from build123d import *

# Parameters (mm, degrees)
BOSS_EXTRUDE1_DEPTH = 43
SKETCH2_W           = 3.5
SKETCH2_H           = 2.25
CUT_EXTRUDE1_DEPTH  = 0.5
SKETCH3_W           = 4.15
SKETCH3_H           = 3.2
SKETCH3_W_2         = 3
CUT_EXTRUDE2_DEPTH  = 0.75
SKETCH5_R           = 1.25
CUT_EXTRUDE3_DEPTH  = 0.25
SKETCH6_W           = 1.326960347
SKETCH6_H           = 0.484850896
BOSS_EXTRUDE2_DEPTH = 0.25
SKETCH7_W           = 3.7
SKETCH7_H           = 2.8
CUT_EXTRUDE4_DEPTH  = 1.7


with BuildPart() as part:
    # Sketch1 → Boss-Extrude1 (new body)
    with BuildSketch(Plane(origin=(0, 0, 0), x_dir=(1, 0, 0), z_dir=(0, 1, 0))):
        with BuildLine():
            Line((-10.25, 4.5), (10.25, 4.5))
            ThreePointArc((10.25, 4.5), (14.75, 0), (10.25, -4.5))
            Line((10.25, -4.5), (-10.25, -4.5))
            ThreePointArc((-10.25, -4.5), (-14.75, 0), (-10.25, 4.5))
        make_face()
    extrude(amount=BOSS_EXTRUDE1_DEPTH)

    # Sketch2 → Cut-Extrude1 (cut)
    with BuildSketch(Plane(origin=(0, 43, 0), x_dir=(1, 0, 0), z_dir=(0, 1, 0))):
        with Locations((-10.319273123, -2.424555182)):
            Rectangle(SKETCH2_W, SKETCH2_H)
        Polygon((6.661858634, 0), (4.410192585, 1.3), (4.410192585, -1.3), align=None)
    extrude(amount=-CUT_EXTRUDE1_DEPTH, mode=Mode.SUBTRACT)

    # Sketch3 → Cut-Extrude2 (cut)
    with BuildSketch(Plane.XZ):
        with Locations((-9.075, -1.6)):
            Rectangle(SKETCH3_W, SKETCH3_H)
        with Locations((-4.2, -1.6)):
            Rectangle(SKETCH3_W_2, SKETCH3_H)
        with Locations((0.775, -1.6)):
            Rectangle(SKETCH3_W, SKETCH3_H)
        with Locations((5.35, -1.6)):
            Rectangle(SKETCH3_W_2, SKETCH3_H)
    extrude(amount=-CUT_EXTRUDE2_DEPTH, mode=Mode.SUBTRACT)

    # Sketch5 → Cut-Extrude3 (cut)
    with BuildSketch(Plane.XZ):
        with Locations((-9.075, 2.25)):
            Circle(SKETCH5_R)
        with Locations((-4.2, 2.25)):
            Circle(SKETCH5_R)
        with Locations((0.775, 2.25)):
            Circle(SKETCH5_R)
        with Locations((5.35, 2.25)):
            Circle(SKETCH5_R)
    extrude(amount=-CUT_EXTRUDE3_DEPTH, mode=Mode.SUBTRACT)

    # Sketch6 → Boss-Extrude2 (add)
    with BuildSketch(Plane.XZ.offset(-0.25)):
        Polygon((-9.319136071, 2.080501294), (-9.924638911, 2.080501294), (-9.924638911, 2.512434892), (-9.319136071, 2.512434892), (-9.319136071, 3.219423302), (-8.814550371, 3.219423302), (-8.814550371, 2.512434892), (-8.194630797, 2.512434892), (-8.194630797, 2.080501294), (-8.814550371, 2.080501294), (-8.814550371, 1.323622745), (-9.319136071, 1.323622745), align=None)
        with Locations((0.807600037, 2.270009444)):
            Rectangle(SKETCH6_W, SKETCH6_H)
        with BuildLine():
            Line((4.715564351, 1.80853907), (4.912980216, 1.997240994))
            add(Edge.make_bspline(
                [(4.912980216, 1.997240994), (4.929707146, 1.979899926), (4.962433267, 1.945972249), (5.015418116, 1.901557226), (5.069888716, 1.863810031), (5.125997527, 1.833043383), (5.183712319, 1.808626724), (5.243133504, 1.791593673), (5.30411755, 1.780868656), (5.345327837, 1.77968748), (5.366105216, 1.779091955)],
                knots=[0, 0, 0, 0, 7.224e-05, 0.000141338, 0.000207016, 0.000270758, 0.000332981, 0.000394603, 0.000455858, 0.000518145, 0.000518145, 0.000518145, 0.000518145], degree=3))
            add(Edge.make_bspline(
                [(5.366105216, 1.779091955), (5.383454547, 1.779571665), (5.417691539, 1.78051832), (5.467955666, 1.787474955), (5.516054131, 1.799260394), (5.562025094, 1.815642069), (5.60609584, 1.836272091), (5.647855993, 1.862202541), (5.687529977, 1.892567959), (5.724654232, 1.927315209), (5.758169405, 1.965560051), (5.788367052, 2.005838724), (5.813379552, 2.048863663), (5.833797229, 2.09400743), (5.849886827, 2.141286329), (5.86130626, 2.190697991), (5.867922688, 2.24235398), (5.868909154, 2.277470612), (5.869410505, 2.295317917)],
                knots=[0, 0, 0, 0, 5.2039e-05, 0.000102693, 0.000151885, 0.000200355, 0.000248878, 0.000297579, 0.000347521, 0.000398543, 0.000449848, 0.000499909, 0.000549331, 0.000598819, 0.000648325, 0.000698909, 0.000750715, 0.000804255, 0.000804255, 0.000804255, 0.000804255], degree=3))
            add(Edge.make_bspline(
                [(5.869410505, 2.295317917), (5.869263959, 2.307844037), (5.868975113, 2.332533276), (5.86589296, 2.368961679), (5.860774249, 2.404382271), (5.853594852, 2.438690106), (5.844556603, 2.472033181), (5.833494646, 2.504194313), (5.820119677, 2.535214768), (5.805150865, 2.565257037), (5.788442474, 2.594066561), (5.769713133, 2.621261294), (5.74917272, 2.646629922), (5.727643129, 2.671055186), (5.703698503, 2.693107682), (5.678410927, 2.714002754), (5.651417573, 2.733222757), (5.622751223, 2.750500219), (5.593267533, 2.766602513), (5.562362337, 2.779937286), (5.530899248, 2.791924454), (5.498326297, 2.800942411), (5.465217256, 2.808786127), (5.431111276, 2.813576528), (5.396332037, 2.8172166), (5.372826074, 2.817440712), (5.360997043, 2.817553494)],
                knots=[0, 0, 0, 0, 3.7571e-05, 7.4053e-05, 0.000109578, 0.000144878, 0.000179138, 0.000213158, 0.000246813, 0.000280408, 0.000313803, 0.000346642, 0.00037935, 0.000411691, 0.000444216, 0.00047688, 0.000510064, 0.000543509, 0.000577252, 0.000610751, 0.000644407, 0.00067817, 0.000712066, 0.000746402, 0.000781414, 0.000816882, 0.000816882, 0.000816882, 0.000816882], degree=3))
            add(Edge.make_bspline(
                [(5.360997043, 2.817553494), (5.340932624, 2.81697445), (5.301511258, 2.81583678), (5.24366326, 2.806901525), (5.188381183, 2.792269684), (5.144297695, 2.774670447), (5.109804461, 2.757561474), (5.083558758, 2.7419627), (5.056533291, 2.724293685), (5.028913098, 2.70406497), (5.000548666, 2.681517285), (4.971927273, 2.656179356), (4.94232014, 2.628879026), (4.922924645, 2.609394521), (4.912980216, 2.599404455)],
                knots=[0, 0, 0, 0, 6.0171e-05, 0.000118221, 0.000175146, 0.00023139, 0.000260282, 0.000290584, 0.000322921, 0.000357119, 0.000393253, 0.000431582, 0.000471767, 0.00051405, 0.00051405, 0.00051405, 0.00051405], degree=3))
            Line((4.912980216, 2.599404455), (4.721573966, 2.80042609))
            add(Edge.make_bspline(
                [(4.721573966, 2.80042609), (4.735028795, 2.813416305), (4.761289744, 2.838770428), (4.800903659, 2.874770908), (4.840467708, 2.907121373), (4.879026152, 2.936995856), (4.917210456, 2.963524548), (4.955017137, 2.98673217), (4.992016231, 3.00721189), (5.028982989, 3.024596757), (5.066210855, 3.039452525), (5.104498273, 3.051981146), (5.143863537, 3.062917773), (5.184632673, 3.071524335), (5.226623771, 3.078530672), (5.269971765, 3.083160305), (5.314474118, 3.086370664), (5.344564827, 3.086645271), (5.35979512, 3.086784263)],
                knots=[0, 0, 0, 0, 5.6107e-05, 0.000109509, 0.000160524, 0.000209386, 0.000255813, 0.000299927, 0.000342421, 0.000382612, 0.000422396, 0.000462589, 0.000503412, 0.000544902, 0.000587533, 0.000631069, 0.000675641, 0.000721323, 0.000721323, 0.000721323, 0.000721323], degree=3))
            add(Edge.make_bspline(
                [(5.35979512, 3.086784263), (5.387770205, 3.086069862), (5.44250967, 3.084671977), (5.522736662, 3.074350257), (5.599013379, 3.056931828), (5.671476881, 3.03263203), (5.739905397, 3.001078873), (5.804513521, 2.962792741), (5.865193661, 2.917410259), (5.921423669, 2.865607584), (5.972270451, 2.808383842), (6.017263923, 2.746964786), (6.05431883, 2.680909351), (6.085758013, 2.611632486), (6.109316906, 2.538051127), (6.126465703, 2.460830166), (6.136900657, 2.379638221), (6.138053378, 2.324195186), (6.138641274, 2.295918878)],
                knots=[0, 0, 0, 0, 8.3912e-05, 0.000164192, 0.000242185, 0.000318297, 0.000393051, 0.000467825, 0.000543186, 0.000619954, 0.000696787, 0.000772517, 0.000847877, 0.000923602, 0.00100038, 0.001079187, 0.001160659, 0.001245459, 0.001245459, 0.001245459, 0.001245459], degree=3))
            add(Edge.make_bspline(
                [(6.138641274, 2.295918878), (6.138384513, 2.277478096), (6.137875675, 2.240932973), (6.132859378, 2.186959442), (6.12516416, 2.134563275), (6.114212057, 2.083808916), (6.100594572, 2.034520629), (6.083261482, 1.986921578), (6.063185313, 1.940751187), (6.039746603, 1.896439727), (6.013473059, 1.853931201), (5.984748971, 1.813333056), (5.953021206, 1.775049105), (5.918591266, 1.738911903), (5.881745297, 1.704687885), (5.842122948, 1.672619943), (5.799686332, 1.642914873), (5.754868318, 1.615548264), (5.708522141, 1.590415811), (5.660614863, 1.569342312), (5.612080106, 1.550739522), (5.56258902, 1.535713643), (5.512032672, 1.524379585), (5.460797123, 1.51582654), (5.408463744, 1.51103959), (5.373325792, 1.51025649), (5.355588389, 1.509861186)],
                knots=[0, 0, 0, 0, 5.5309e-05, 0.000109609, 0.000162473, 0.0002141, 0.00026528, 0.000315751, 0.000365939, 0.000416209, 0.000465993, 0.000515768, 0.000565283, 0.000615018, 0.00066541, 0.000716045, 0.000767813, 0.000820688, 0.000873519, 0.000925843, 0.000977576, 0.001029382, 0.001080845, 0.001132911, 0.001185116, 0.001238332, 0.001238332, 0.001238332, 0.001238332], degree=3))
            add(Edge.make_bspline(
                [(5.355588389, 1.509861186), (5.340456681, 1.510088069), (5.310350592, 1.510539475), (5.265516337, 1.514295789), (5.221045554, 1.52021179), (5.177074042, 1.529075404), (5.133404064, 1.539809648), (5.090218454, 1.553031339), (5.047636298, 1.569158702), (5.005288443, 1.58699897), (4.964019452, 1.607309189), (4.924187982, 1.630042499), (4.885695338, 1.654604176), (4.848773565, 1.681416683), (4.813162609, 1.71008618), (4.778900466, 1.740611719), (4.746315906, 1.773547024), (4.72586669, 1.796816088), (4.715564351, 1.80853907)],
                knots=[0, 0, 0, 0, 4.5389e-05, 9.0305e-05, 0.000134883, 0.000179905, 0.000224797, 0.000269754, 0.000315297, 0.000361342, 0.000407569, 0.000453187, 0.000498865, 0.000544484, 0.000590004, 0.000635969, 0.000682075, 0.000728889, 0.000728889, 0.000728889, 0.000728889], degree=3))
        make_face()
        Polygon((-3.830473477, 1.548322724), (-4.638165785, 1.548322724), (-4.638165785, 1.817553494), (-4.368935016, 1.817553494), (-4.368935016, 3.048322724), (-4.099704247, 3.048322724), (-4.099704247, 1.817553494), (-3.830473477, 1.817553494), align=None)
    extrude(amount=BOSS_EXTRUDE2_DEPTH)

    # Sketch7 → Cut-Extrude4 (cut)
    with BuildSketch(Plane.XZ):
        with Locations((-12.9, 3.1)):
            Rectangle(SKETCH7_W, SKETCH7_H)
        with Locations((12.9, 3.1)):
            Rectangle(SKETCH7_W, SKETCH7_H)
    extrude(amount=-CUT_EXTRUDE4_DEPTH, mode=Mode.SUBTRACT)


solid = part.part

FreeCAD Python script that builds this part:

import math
import FreeCAD as App
import Part
import Sketcher
from FreeCAD import Vector
Q = App.Units.Quantity

doc = App.newDocument("Part")
params = doc.addObject("Spreadsheet::Sheet", "Params")
for row, (alias, value) in enumerate([
    ("sketch1_radius", "4.5 mm"),
    ("sketch1_width", "20.5 mm"),
    ("pad1_length", "43 mm"),
    ("sketch2_width", "3.5 mm"),
    ("sketch2_height", "2.6 mm"),
    ("sketch2_height2", "2.25 mm"),
    ("pocket1_length", "0.5 mm"),
    ("sketch3_width", "3 mm"),
    ("sketch3_height", "3.2 mm"),
    ("sketch3_width2", "4.15 mm"),
    ("pocket2_length", "0.75 mm"),
    ("sketch4_diameter", "2.5 mm"),
    ("pocket3_length", "0.25 mm"),
    ("pad2_length", "0.25 mm"),
    ("sketch6_width", "3.7 mm"),
    ("sketch6_height", "2.8 mm"),
    ("pocket4_length", "1.7 mm"),
], start=1):
    params.set(f"A{row}", alias)
    params.set(f"B{row}", "=" + value)
    params.setAlias(f"B{row}", alias)

body = doc.addObject("PartDesign::Body", "Body")

# Sketch on XZ plane
sketch1 = body.newObject("Sketcher::SketchObject", "Sketch")
sketch1.AttachmentSupport = (doc.getObject("XZ_Plane"), [""])
sketch1.MapMode = "FlatFace"
sketch1.addGeometry([
    Part.LineSegment(Vector(10.2, -4.5, 0), Vector(-10.2, -4.5, 0)),
    Part.ArcOfCircle(Part.Circle(Vector(-10.2, 0, 0), Vector(0, 0, 1), 4.5), math.radians(90), math.radians(270)),
    Part.LineSegment(Vector(-10.2, 4.5, 0), Vector(10.2, 4.5, 0)),
    Part.ArcOfCircle(Part.Circle(Vector(10.2, 0, 0), Vector(0, 0, 1), 4.5), math.radians(-90), math.radians(90)),
], False)
sketch1.addConstraint([
    Sketcher.Constraint("Tangent", 0, 2, 1, 2),
    Sketcher.Constraint("Tangent", 1, 1, 2, 1),
    Sketcher.Constraint("Tangent", 2, 2, 3, 2),
    Sketcher.Constraint("Tangent", 3, 1, 0, 1),
    Sketcher.Constraint("Horizontal", 0),
    Sketcher.Constraint("Horizontal", 2),
    Sketcher.Constraint("Symmetric", 1, 3, 3, 3, -1, 1),
    Sketcher.Constraint("Radius", 1, Q("4.5 mm")),
    Sketcher.Constraint("DistanceX", 0, 2, 0, 1, Q("20.5 mm")),
])
sketch1.setExpression("Constraints[7]", "Params.sketch1_radius")
sketch1.setExpression("Constraints[8]", "Params.sketch1_width")
pad1 = body.newObject("PartDesign::Pad", "Pad")
pad1.Profile = sketch1
pad1.setExpression("Length", "Params.pad1_length")
pad1.Reversed = True

# Sketch on XZ plane
sketch2 = body.newObject("Sketcher::SketchObject", "Sketch001")
sketch2.AttachmentSupport = (doc.getObject("XZ_Plane"), [""])
sketch2.MapMode = "FlatFace"
sketch2.AttachmentOffset = App.Placement(Vector(0, 0, -43), App.Rotation())
sketch2.addGeometry([
    Part.LineSegment(Vector(-12.1, 1.3, 0), Vector(-12.1, 3.5, 0)),  # 0
    Part.LineSegment(Vector(-12.1, 3.5, 0), Vector(-8.6, 3.5, 0)),  # 1
    Part.LineSegment(Vector(-8.6, 3.5, 0), Vector(-8.6, 1.3, 0)),  # 2
    Part.LineSegment(Vector(-8.6, 1.3, 0), Vector(-12.1, 1.3, 0)),  # 3
    Part.LineSegment(Vector(6.7, 0, 0), Vector(4.4, -1.3, 0)),  # 4
    Part.LineSegment(Vector(4.4, -1.3, 0), Vector(4.4, 1.3, 0)),  # 5
    Part.LineSegment(Vector(4.4, 1.3, 0), Vector(6.7, 0, 0)),  # 6
], False)
sketch2.addConstraint([
    Sketcher.Constraint("Coincident", 0, 2, 1, 1),
    Sketcher.Constraint("Coincident", 1, 2, 2, 1),
    Sketcher.Constraint("Coincident", 2, 2, 3, 1),
    Sketcher.Constraint("Coincident", 3, 2, 0, 1),
    Sketcher.Constraint("Coincident", 4, 2, 5, 1),
    Sketcher.Constraint("Coincident", 5, 2, 6, 1),
    Sketcher.Constraint("Coincident", 6, 2, 4, 1),
    Sketcher.Constraint("Vertical", 0),
    Sketcher.Constraint("Horizontal", 1),
    Sketcher.Constraint("Vertical", 2),
    Sketcher.Constraint("Horizontal", 3),
    Sketcher.Constraint("Vertical", 5),
    Sketcher.Constraint("PointOnObject", 6, 2, -1),
    Sketcher.Constraint("Equal", 4, 6),
    Sketcher.Constraint("Angle", 4, Q("-150 deg")),
    Sketcher.Constraint("DistanceX", 1, 1, 1, 2, Q("3.5 mm")),
    Sketcher.Constraint("DistanceY", 5, 1, 5, 2, Q("2.6 mm")),
    Sketcher.Constraint("DistanceY", 0, 1, 0, 2, Q("2.25 mm")),
    Sketcher.Constraint("DistanceX", -1, 1, 6, 2, Q("6.661859 mm")),
    Sketcher.Constraint("DistanceX", 2, 2, 6, 2, Q("15.231132 mm")),
    Sketcher.Constraint("DistanceY", -1, 1, 0, 2, Q("3.549555 mm")),
])
sketch2.setExpression("Constraints[15]", "Params.sketch2_width")
sketch2.setExpression("Constraints[16]", "Params.sketch2_height")
sketch2.setExpression("Constraints[17]", "Params.sketch2_height2")
pocket1 = body.newObject("PartDesign::Pocket", "Pocket")
pocket1.Profile = sketch2
pocket1.setExpression("Length", "Params.pocket1_length")
pocket1.Reversed = True

# Sketch on XZ plane
sketch3 = body.newObject("Sketcher::SketchObject", "Sketch002")
sketch3.AttachmentSupport = (doc.getObject("XZ_Plane"), [""])
sketch3.MapMode = "FlatFace"
sketch3.addGeometry([
    Part.LineSegment(Vector(-11.2, 0, 0), Vector(-11.2, -3.2, 0)),  # 0
    Part.LineSegment(Vector(-11.2, -3.2, 0), Vector(-7, -3.2, 0)),  # 1
    Part.LineSegment(Vector(-7, -3.2, 0), Vector(-7, 0, 0)),  # 2
    Part.LineSegment(Vector(-7, 0, 0), Vector(-11.2, 0, 0)),  # 3
    Part.LineSegment(Vector(-5.7, 0, 0), Vector(-5.7, -3.2, 0)),  # 4
    Part.LineSegment(Vector(-5.7, -3.2, 0), Vector(-2.7, -3.2, 0)),  # 5
    Part.LineSegment(Vector(-2.7, -3.2, 0), Vector(-2.7, 0, 0)),  # 6
    Part.LineSegment(Vector(-2.7, 0, 0), Vector(-5.7, 0, 0)),  # 7
    Part.LineSegment(Vector(-1.3, 0, 0), Vector(-1.3, -3.2, 0)),  # 8
    Part.LineSegment(Vector(-1.3, -3.2, 0), Vector(2.9, -3.2, 0)),  # 9
    Part.LineSegment(Vector(2.9, -3.2, 0), Vector(2.9, 0, 0)),  # 10
    Part.LineSegment(Vector(2.9, 0, 0), Vector(-1.3, 0, 0)),  # 11
    Part.LineSegment(Vector(3.9, 0, 0), Vector(3.9, -3.2, 0)),  # 12
    Part.LineSegment(Vector(3.9, -3.2, 0), Vector(6.8, -3.2, 0)),  # 13
    Part.LineSegment(Vector(6.8, -3.2, 0), Vector(6.8, 0, 0)),  # 14
    Part.LineSegment(Vector(6.8, 0, 0), Vector(3.9, 0, 0)),  # 15
], False)
sketch3.addConstraint([
    Sketcher.Constraint("Coincident", 0, 2, 1, 1),
    Sketcher.Constraint("Coincident", 1, 2, 2, 1),
    Sketcher.Constraint("Coincident", 2, 2, 3, 1),
    Sketcher.Constraint("Coincident", 3, 2, 0, 1),
    Sketcher.Constraint("Coincident", 4, 2, 5, 1),
    Sketcher.Constraint("Coincident", 5, 2, 6, 1),
    Sketcher.Constraint("Coincident", 6, 2, 7, 1),
    Sketcher.Constraint("Coincident", 7, 2, 4, 1),
    Sketcher.Constraint("Coincident", 8, 2, 9, 1),
    Sketcher.Constraint("Coincident", 9, 2, 10, 1),
    Sketcher.Constraint("Coincident", 10, 2, 11, 1),
    Sketcher.Constraint("Coincident", 11, 2, 8, 1),
    Sketcher.Constraint("Coincident", 12, 2, 13, 1),
    Sketcher.Constraint("Coincident", 13, 2, 14, 1),
    Sketcher.Constraint("Coincident", 14, 2, 15, 1),
    Sketcher.Constraint("Coincident", 15, 2, 12, 1),
    Sketcher.Constraint("Vertical", 0),
    Sketcher.Constraint("Horizontal", 1),
    Sketcher.Constraint("Vertical", 2),
    Sketcher.Constraint("Horizontal", 3),
    Sketcher.Constraint("Vertical", 4),
    Sketcher.Constraint("Horizontal", 5),
    Sketcher.Constraint("Vertical", 6),
    Sketcher.Constraint("Horizontal", 7),
    Sketcher.Constraint("Vertical", 8),
    Sketcher.Constraint("Horizontal", 9),
    Sketcher.Constraint("Vertical", 10),
    Sketcher.Constraint("Horizontal", 11),
    Sketcher.Constraint("Vertical", 12),
    Sketcher.Constraint("Horizontal", 13),
    Sketcher.Constraint("Vertical", 14),
    Sketcher.Constraint("Horizontal", 15),
    Sketcher.Constraint("PointOnObject", 2, 2, -1),
    Sketcher.Constraint("PointOnObject", 6, 2, -1),
    Sketcher.Constraint("PointOnObject", 10, 2, -1),
    Sketcher.Constraint("PointOnObject", 14, 2, -1),
    Sketcher.Constraint("Horizontal", 1, 2, 4, 2),
    Sketcher.Constraint("Horizontal", 5, 2, 8, 2),
    Sketcher.Constraint("Horizontal", 9, 2, 12, 2),
    Sketcher.Constraint("Equal", 3, 9),
    Sketcher.Constraint("Equal", 7, 13),
    Sketcher.Constraint("DistanceX", 5, 1, 5, 2, Q("3 mm")),
    Sketcher.Constraint("DistanceY", 0, 2, 0, 1, Q("3.2 mm")),
    Sketcher.Constraint("DistanceX", 1, 2, -1, 1, Q("7 mm")),
    Sketcher.Constraint("DistanceX", 9, 2, 12, 2, Q("1 mm")),
    Sketcher.Constraint("DistanceX", 1, 1, 1, 2, Q("4.15 mm")),
    Sketcher.Constraint("DistanceX", 4, 2, -1, 1, Q("5.7 mm")),
    Sketcher.Constraint("DistanceX", 8, 2, -1, 1, Q("1.3 mm")),
])
sketch3.setExpression("Constraints[41]", "Params.sketch3_width")
sketch3.setExpression("Constraints[42]", "Params.sketch3_height")
sketch3.setExpression("Constraints[45]", "Params.sketch3_width2")
pocket2 = body.newObject("PartDesign::Pocket", "Pocket001")
pocket2.Profile = sketch3
pocket2.setExpression("Length", "Params.pocket2_length")

# Sketch on XZ plane
sketch4 = body.newObject("Sketcher::SketchObject", "Sketch003")
sketch4.AttachmentSupport = (doc.getObject("XZ_Plane"), [""])
sketch4.MapMode = "FlatFace"
sketch4.addGeometry([
    Part.Circle(Vector(-9.1, 2.2, 0), Vector(0, 0, 1), 1.2),
    Part.Circle(Vector(-4.2, 2.2, 0), Vector(0, 0, 1), 1.2),
    Part.Circle(Vector(0.8, 2.2, 0), Vector(0, 0, 1), 1.2),
    Part.Circle(Vector(5.3, 2.2, 0), Vector(0, 0, 1), 1.2),
], False)
sketch4.addConstraint([
    Sketcher.Constraint("Equal", 0, 1),
    Sketcher.Constraint("Equal", 1, 2),
    Sketcher.Constraint("Equal", 2, 3),
    Sketcher.Constraint("Horizontal", 0, 3, 1, 3),
    Sketcher.Constraint("Horizontal", 1, 3, 2, 3),
    Sketcher.Constraint("Horizontal", 2, 3, 3, 3),
    Sketcher.Constraint("Diameter", 0, Q("2.5 mm")),
    Sketcher.Constraint("DistanceX", 1, 3, -1, 1, Q("4.2 mm")),
    Sketcher.Constraint("DistanceY", -1, 1, 0, 3, Q("2.25 mm")),
    Sketcher.Constraint("DistanceX", -1, 1, 3, 3, Q("5.35 mm")),
    Sketcher.Constraint("DistanceX", 0, 3, 2, 3, Q("9.85 mm")),
    Sketcher.Constraint("DistanceX", 0, 3, -1, 1, Q("9.075 mm")),
])
sketch4.setExpression("Constraints[6]", "Params.sketch4_diameter")
pocket3 = body.newObject("PartDesign::Pocket", "Pocket002")
pocket3.Profile = sketch4
pocket3.setExpression("Length", "Params.pocket3_length")

# Sketch on XZ plane
sketch5 = body.newObject("Sketcher::SketchObject", "Sketch004")
sketch5.AttachmentSupport = (doc.getObject("XZ_Plane"), [""])
sketch5.MapMode = "FlatFace"
sketch5.AttachmentOffset = App.Placement(Vector(0, 0, -0.25), App.Rotation())
sketch5.addGeometry([
    Part.LineSegment(Vector(-9.924639, 2.080501, 0), Vector(-9.319136, 2.080501, 0)),  # 0
    Part.LineSegment(Vector(-9.319136, 2.080501, 0), Vector(-9.319136, 1.323623, 0)),  # 1
    Part.LineSegment(Vector(-9.319136, 1.323623, 0), Vector(-8.81455, 1.323623, 0)),  # 2
    Part.LineSegment(Vector(-8.81455, 1.323623, 0), Vector(-8.81455, 2.080501, 0)),  # 3
    Part.LineSegment(Vector(-8.81455, 2.080501, 0), Vector(-8.194631, 2.080501, 0)),  # 4
    Part.LineSegment(Vector(-8.194631, 2.080501, 0), Vector(-8.194631, 2.512435, 0)),  # 5
    Part.LineSegment(Vector(-8.194631, 2.512435, 0), Vector(-8.81455, 2.512435, 0)),  # 6
    Part.LineSegment(Vector(-8.81455, 2.512435, 0), Vector(-8.81455, 3.219423, 0)),  # 7
    Part.LineSegment(Vector(-8.81455, 3.219423, 0), Vector(-9.319136, 3.219423, 0)),  # 8
    Part.LineSegment(Vector(-9.319136, 3.219423, 0), Vector(-9.319136, 2.512435, 0)),  # 9
    Part.LineSegment(Vector(-9.319136, 2.512435, 0), Vector(-9.924639, 2.512435, 0)),  # 10
    Part.LineSegment(Vector(-9.924639, 2.512435, 0), Vector(-9.924639, 2.080501, 0)),  # 11
    Part.LineSegment(Vector(0.14412, 2.512435, 0), Vector(0.14412, 2.027584, 0)),  # 12
    Part.LineSegment(Vector(0.14412, 2.027584, 0), Vector(1.47108, 2.027584, 0)),  # 13
    Part.LineSegment(Vector(1.47108, 2.027584, 0), Vector(1.47108, 2.512435, 0)),  # 14
    Part.LineSegment(Vector(1.47108, 2.512435, 0), Vector(0.14412, 2.512435, 0)),  # 15
    Part.LineSegment(Vector(4.91298, 1.997241, 0), Vector(4.715564, 1.808539, 0)),  # 16
    Part.BSplineCurve([Vector(5.355588, 1.509861, 0), Vector(5.340457, 1.510088, 0), Vector(5.310351, 1.510539, 0), Vector(5.265516, 1.514296, 0), Vector(5.221046, 1.520212, 0), Vector(5.177074, 1.529075, 0), Vector(5.133404, 1.53981, 0), Vector(5.090218, 1.553031, 0), Vector(5.047636, 1.569159, 0), Vector(5.005288, 1.586999, 0), Vector(4.964019, 1.607309, 0), Vector(4.924188, 1.630042, 0), Vector(4.885695, 1.654604, 0), Vector(4.848774, 1.681417, 0), Vector(4.813163, 1.710086, 0), Vector(4.7789, 1.740612, 0), Vector(4.746316, 1.773547, 0), Vector(4.725867, 1.796816, 0), Vector(4.715564, 1.808539, 0)], [4, 1, 1, 1, 1, 1, 1, 1, 1, 1, 1, 1, 1, 1, 1, 1, 4], [0, 0.000045389, 0.000090305, 0.000134883, 0.000179905, 0.000224797, 0.000269754, 0.000315297, 0.000361342, 0.000407569, 0.000453187, 0.000498865, 0.000544484, 0.000590004, 0.000635969, 0.000682075, 0.000728889], False, 3, [1, 1, 1, 1, 1, 1, 1, 1, 1, 1, 1, 1, 1, 1, 1, 1, 1, 1, 1], False),  # 17
    Part.BSplineCurve([Vector(6.138641, 2.295919, 0), Vector(6.138385, 2.277478, 0), Vector(6.137876, 2.240933, 0), Vector(6.132859, 2.186959, 0), Vector(6.125164, 2.134563, 0), Vector(6.114212, 2.083809, 0), Vector(6.100595, 2.034521, 0), Vector(6.083261, 1.986922, 0), Vector(6.063185, 1.940751, 0), Vector(6.039747, 1.89644, 0), Vector(6.013473, 1.853931, 0), Vector(5.984749, 1.813333, 0), Vector(5.953021, 1.775049, 0), Vector(5.918591, 1.738912, 0), Vector(5.881745, 1.704688, 0), Vector(5.842123, 1.67262, 0), Vector(5.799686, 1.642915, 0), Vector(5.754868, 1.615548, 0), Vector(5.708522, 1.590416, 0), Vector(5.660615, 1.569342, 0), Vector(5.61208, 1.55074, 0), Vector(5.562589, 1.535714, 0), Vector(5.512033, 1.52438, 0), Vector(5.460797, 1.515827, 0), Vector(5.408464, 1.51104, 0), Vector(5.373326, 1.510256, 0), Vector(5.355588, 1.509861, 0)], [4, 1, 1, 1, 1, 1, 1, 1, 1, 1, 1, 1, 1, 1, 1, 1, 1, 1, 1, 1, 1, 1, 1, 1, 4], [0, 0.000055309, 0.000109609, 0.000162473, 0.0002141, 0.00026528, 0.000315751, 0.000365939, 0.000416209, 0.000465993, 0.000515768, 0.000565283, 0.000615018, 0.00066541, 0.000716045, 0.000767813, 0.000820688, 0.000873519, 0.000925843, 0.000977576, 0.001029382, 0.001080845, 0.001132911, 0.001185116, 0.001238332], False, 3, [1, 1, 1, 1, 1, 1, 1, 1, 1, 1, 1, 1, 1, 1, 1, 1, 1, 1, 1, 1, 1, 1, 1, 1, 1, 1, 1], False),  # 18
    Part.BSplineCurve([Vector(5.359795, 3.086784, 0), Vector(5.38777, 3.08607, 0), Vector(5.44251, 3.084672, 0), Vector(5.522737, 3.07435, 0), Vector(5.599013, 3.056932, 0), Vector(5.671477, 3.032632, 0), Vector(5.739905, 3.001079, 0), Vector(5.804514, 2.962793, 0), Vector(5.865194, 2.91741, 0), Vector(5.921424, 2.865608, 0), Vector(5.97227, 2.808384, 0), Vector(6.017264, 2.746965, 0), Vector(6.054319, 2.680909, 0), Vector(6.085758, 2.611632, 0), Vector(6.109317, 2.538051, 0), Vector(6.126466, 2.46083, 0), Vector(6.136901, 2.379638, 0), Vector(6.138053, 2.324195, 0), Vector(6.138641, 2.295919, 0)], [4, 1, 1, 1, 1, 1, 1, 1, 1, 1, 1, 1, 1, 1, 1, 1, 4], [0, 0.000083912, 0.000164192, 0.000242185, 0.000318297, 0.000393051, 0.000467825, 0.000543186, 0.000619954, 0.000696787, 0.000772517, 0.000847877, 0.000923602, 0.00100038, 0.001079187, 0.001160659, 0.001245459], False, 3, [1, 1, 1, 1, 1, 1, 1, 1, 1, 1, 1, 1, 1, 1, 1, 1, 1, 1, 1], False),  # 19
    Part.BSplineCurve([Vector(4.721574, 2.800426, 0), Vector(4.735029, 2.813416, 0), Vector(4.76129, 2.83877, 0), Vector(4.800904, 2.874771, 0), Vector(4.840468, 2.907121, 0), Vector(4.879026, 2.936996, 0), Vector(4.91721, 2.963525, 0), Vector(4.955017, 2.986732, 0), Vector(4.992016, 3.007212, 0), Vector(5.028983, 3.024597, 0), Vector(5.066211, 3.039453, 0), Vector(5.104498, 3.051981, 0), Vector(5.143864, 3.062918, 0), Vector(5.184633, 3.071524, 0), Vector(5.226624, 3.078531, 0), Vector(5.269972, 3.08316, 0), Vector(5.314474, 3.086371, 0), Vector(5.344565, 3.086645, 0), Vector(5.359795, 3.086784, 0)], [4, 1, 1, 1, 1, 1, 1, 1, 1, 1, 1, 1, 1, 1, 1, 1, 4], [0, 0.000056107, 0.000109509, 0.000160524, 0.000209386, 0.000255813, 0.000299927, 0.000342421, 0.000382612, 0.000422396, 0.000462589, 0.000503412, 0.000544902, 0.000587533, 0.000631069, 0.000675641, 0.000721323], False, 3, [1, 1, 1, 1, 1, 1, 1, 1, 1, 1, 1, 1, 1, 1, 1, 1, 1, 1, 1], False),  # 20
    Part.LineSegment(Vector(4.721574, 2.800426, 0), Vector(4.91298, 2.599404, 0)),  # 21
    Part.BSplineCurve([Vector(5.360997, 2.817553, 0), Vector(5.340933, 2.816974, 0), Vector(5.301511, 2.815837, 0), Vector(5.243663, 2.806902, 0), Vector(5.188381, 2.79227, 0), Vector(5.144298, 2.77467, 0), Vector(5.109804, 2.757561, 0), Vector(5.083559, 2.741963, 0), Vector(5.056533, 2.724294, 0), Vector(5.028913, 2.704065, 0), Vector(5.000549, 2.681517, 0), Vector(4.971927, 2.656179, 0), Vector(4.94232, 2.628879, 0), Vector(4.922925, 2.609395, 0), Vector(4.91298, 2.599404, 0)], [4, 1, 1, 1, 1, 1, 1, 1, 1, 1, 1, 1, 4], [0, 0.000060171, 0.000118221, 0.000175146, 0.00023139, 0.000260282, 0.000290584, 0.000322921, 0.000357119, 0.000393253, 0.000431582, 0.000471767, 0.00051405], False, 3, [1, 1, 1, 1, 1, 1, 1, 1, 1, 1, 1, 1, 1, 1, 1], False),  # 22
    Part.BSplineCurve([Vector(5.869411, 2.295318, 0), Vector(5.869264, 2.307844, 0), Vector(5.868975, 2.332533, 0), Vector(5.865893, 2.368962, 0), Vector(5.860774, 2.404382, 0), Vector(5.853595, 2.43869, 0), Vector(5.844557, 2.472033, 0), Vector(5.833495, 2.504194, 0), Vector(5.82012, 2.535215, 0), Vector(5.805151, 2.565257, 0), Vector(5.788442, 2.594067, 0), Vector(5.769713, 2.621261, 0), Vector(5.749173, 2.64663, 0), Vector(5.727643, 2.671055, 0), Vector(5.703699, 2.693108, 0), Vector(5.678411, 2.714003, 0), Vector(5.651418, 2.733223, 0), Vector(5.622751, 2.7505, 0), Vector(5.593268, 2.766603, 0), Vector(5.562362, 2.779937, 0), Vector(5.530899, 2.791924, 0), Vector(5.498326, 2.800942, 0), Vector(5.465217, 2.808786, 0), Vector(5.431111, 2.813577, 0), Vector(5.396332, 2.817217, 0), Vector(5.372826, 2.817441, 0), Vector(5.360997, 2.817553, 0)], [4, 1, 1, 1, 1, 1, 1, 1, 1, 1, 1, 1, 1, 1, 1, 1, 1, 1, 1, 1, 1, 1, 1, 1, 4], [0, 0.000037571, 0.000074053, 0.000109578, 0.000144878, 0.000179138, 0.000213158, 0.000246813, 0.000280408, 0.000313803, 0.000346642, 0.00037935, 0.000411691, 0.000444216, 0.00047688, 0.000510064, 0.000543509, 0.000577252, 0.000610751, 0.000644407, 0.00067817, 0.000712066, 0.000746402, 0.000781414, 0.000816882], False, 3, [1, 1, 1, 1, 1, 1, 1, 1, 1, 1, 1, 1, 1, 1, 1, 1, 1, 1, 1, 1, 1, 1, 1, 1, 1, 1, 1], False),  # 23
    Part.BSplineCurve([Vector(5.366105, 1.779092, 0), Vector(5.383455, 1.779572, 0), Vector(5.417692, 1.780518, 0), Vector(5.467956, 1.787475, 0), Vector(5.516054, 1.79926, 0), Vector(5.562025, 1.815642, 0), Vector(5.606096, 1.836272, 0), Vector(5.647856, 1.862203, 0), Vector(5.68753, 1.892568, 0), Vector(5.724654, 1.927315, 0), Vector(5.758169, 1.96556, 0), Vector(5.788367, 2.005839, 0), Vector(5.81338, 2.048864, 0), Vector(5.833797, 2.094007, 0), Vector(5.849887, 2.141286, 0), Vector(5.861306, 2.190698, 0), Vector(5.867923, 2.242354, 0), Vector(5.868909, 2.277471, 0), Vector(5.869411, 2.295318, 0)], [4, 1, 1, 1, 1, 1, 1, 1, 1, 1, 1, 1, 1, 1, 1, 1, 4], [0, 0.000052039, 0.000102693, 0.000151885, 0.000200355, 0.000248878, 0.000297579, 0.000347521, 0.000398543, 0.000449848, 0.000499909, 0.000549331, 0.000598819, 0.000648325, 0.000698909, 0.000750715, 0.000804255], False, 3, [1, 1, 1, 1, 1, 1, 1, 1, 1, 1, 1, 1, 1, 1, 1, 1, 1, 1, 1], False),  # 24
    Part.BSplineCurve([Vector(4.91298, 1.997241, 0), Vector(4.929707, 1.9799, 0), Vector(4.962433, 1.945972, 0), Vector(5.015418, 1.901557, 0), Vector(5.069889, 1.86381, 0), Vector(5.125998, 1.833043, 0), Vector(5.183712, 1.808627, 0), Vector(5.243134, 1.791594, 0), Vector(5.304118, 1.780869, 0), Vector(5.345328, 1.779687, 0), Vector(5.366105, 1.779092, 0)], [4, 1, 1, 1, 1, 1, 1, 1, 4], [0, 0.00007224, 0.000141338, 0.000207016, 0.000270758, 0.000332981, 0.000394603, 0.000455858, 0.000518145], False, 3, [1, 1, 1, 1, 1, 1, 1, 1, 1, 1, 1], False),  # 25
    Part.LineSegment(Vector(-4.638166, 1.548323, 0), Vector(-3.830473, 1.548323, 0)),  # 26
    Part.LineSegment(Vector(-3.830473, 1.548323, 0), Vector(-3.830473, 1.817553, 0)),  # 27
    Part.LineSegment(Vector(-3.830473, 1.817553, 0), Vector(-4.099704, 1.817553, 0)),  # 28
    Part.LineSegment(Vector(-4.099704, 1.817553, 0), Vector(-4.099704, 3.048323, 0)),  # 29
    Part.LineSegment(Vector(-4.099704, 3.048323, 0), Vector(-4.368935, 3.048323, 0)),  # 30
    Part.LineSegment(Vector(-4.368935, 3.048323, 0), Vector(-4.368935, 1.817553, 0)),  # 31
    Part.LineSegment(Vector(-4.368935, 1.817553, 0), Vector(-4.638166, 1.817553, 0)),  # 32
    Part.LineSegment(Vector(-4.638166, 1.817553, 0), Vector(-4.638166, 1.548323, 0)),  # 33
], False)
sketch5.addConstraint([
    Sketcher.Constraint("Block", 17),
    Sketcher.Constraint("Block", 18),
    Sketcher.Constraint("Block", 19),
    Sketcher.Constraint("Block", 20),
    Sketcher.Constraint("Block", 22),
    Sketcher.Constraint("Block", 23),
    Sketcher.Constraint("Block", 24),
    Sketcher.Constraint("Block", 25),
    Sketcher.Constraint("Coincident", 0, 2, 1, 1),
    Sketcher.Constraint("Coincident", 1, 2, 2, 1),
    Sketcher.Constraint("Coincident", 2, 2, 3, 1),
    Sketcher.Constraint("Coincident", 3, 2, 4, 1),
    Sketcher.Constraint("Coincident", 4, 2, 5, 1),
    Sketcher.Constraint("Coincident", 5, 2, 6, 1),
    Sketcher.Constraint("Coincident", 6, 2, 7, 1),
    Sketcher.Constraint("Coincident", 7, 2, 8, 1),
    Sketcher.Constraint("Coincident", 8, 2, 9, 1),
    Sketcher.Constraint("Coincident", 9, 2, 10, 1),
    Sketcher.Constraint("Coincident", 10, 2, 11, 1),
    Sketcher.Constraint("Coincident", 11, 2, 0, 1),
    Sketcher.Constraint("Coincident", 12, 2, 13, 1),
    Sketcher.Constraint("Coincident", 13, 2, 14, 1),
    Sketcher.Constraint("Coincident", 14, 2, 15, 1),
    Sketcher.Constraint("Coincident", 15, 2, 12, 1),
    Sketcher.Constraint("Coincident", 16, 2, 17, 2),
    Sketcher.Constraint("Coincident", 20, 1, 21, 1),
    Sketcher.Constraint("Coincident", 21, 2, 22, 2),
    Sketcher.Constraint("Coincident", 25, 1, 16, 1),
    Sketcher.Constraint("Coincident", 26, 2, 27, 1),
    Sketcher.Constraint("Coincident", 27, 2, 28, 1),
    Sketcher.Constraint("Coincident", 28, 2, 29, 1),
    Sketcher.Constraint("Coincident", 29, 2, 30, 1),
    Sketcher.Constraint("Coincident", 30, 2, 31, 1),
    Sketcher.Constraint("Coincident", 31, 2, 32, 1),
    Sketcher.Constraint("Coincident", 32, 2, 33, 1),
    Sketcher.Constraint("Coincident", 33, 2, 26, 1),
    Sketcher.Constraint("Horizontal", 0),
    Sketcher.Constraint("Vertical", 1),
    Sketcher.Constraint("Horizontal", 2),
    Sketcher.Constraint("Vertical", 3),
    Sketcher.Constraint("Horizontal", 4),
    Sketcher.Constraint("Vertical", 5),
    Sketcher.Constraint("Horizontal", 6),
    Sketcher.Constraint("Vertical", 7),
    Sketcher.Constraint("Horizontal", 8),
    Sketcher.Constraint("Vertical", 9),
    Sketcher.Constraint("Horizontal", 10),
    Sketcher.Constraint("Vertical", 11),
    Sketcher.Constraint("Vertical", 12),
    Sketcher.Constraint("Horizontal", 13),
    Sketcher.Constraint("Vertical", 14),
    Sketcher.Constraint("Horizontal", 15),
    Sketcher.Constraint("Horizontal", 26),
    Sketcher.Constraint("Vertical", 27),
    Sketcher.Constraint("Horizontal", 28),
    Sketcher.Constraint("Vertical", 29),
    Sketcher.Constraint("Horizontal", 30),
    Sketcher.Constraint("Vertical", 31),
    Sketcher.Constraint("Horizontal", 32),
    Sketcher.Constraint("Vertical", 33),
    Sketcher.Constraint("Horizontal", 0, 2, 3, 2),
    Sketcher.Constraint("Horizontal", 6, 2, 9, 2),
    Sketcher.Constraint("Horizontal", 10, 2, 14, 2),
    Sketcher.Constraint("Horizontal", 28, 2, 31, 2),
    Sketcher.Constraint("Vertical", 3, 2, 6, 2),
    Sketcher.Constraint("Vertical", 1, 2, 8, 2),
    Sketcher.Constraint("Equal", 28, 30),
    Sketcher.Constraint("Equal", 30, 32),
    Sketcher.Constraint("Equal", 32, 27),
    Sketcher.Constraint("DistanceY", 26, 2, 29, 2, Q("1.5 mm")),
    Sketcher.Constraint("DistanceX", 4, 1, 4, 2, Q("0.61992 mm")),
    Sketcher.Constraint("DistanceX", 13, 1, 13, 2, Q("1.32696 mm")),
    Sketcher.Constraint("DistanceX", 28, 2, 28, 1, Q("0.269231 mm")),
    Sketcher.Constraint("DistanceY", 1, 2, 1, 1, Q("0.756879 mm")),
    Sketcher.Constraint("DistanceY", 7, 1, 7, 2, Q("0.706988 mm")),
    Sketcher.Constraint("DistanceY", 12, 2, 12, 1, Q("0.484851 mm")),
    Sketcher.Constraint("DistanceY", -1, 1, 0, 2, Q("2.080501 mm")),
    Sketcher.Constraint("DistanceX", 14, 2, 21, 2, Q("3.4419 mm")),
    Sketcher.Constraint("DistanceY", 2, 2, 26, 2, Q("0.2247 mm")),
    Sketcher.Constraint("DistanceX", 0, 1, 0, 2, Q("0.605503 mm")),
    Sketcher.Constraint("DistanceX", 2, 1, 2, 2, Q("0.504586 mm")),
    Sketcher.Constraint("DistanceY", 5, 1, 5, 2, Q("0.431934 mm")),
    Sketcher.Constraint("DistanceX", 2, 2, -1, 1, Q("8.81455 mm")),
    Sketcher.Constraint("DistanceX", 26, 2, -1, 1, Q("3.830473 mm")),
])
pad2 = body.newObject("PartDesign::Pad", "Pad001")
pad2.Profile = sketch5
pad2.setExpression("Length", "Params.pad2_length")

# Sketch on XZ plane
sketch6 = body.newObject("Sketcher::SketchObject", "Sketch005")
sketch6.AttachmentSupport = (doc.getObject("XZ_Plane"), [""])
sketch6.MapMode = "FlatFace"
sketch6.addGeometry([
    Part.LineSegment(Vector(-14.8, 4.5, 0), Vector(-14.8, 1.7, 0)),  # 0
    Part.LineSegment(Vector(-14.8, 1.7, 0), Vector(-11.1, 1.7, 0)),  # 1
    Part.LineSegment(Vector(-11.1, 1.7, 0), Vector(-11.1, 4.5, 0)),  # 2
    Part.LineSegment(Vector(-11.1, 4.5, 0), Vector(-14.8, 4.5, 0)),  # 3
    Part.LineSegment(Vector(11.1, 4.5, 0), Vector(11.1, 1.7, 0)),  # 4
    Part.LineSegment(Vector(11.1, 1.7, 0), Vector(14.8, 1.7, 0)),  # 5
    Part.LineSegment(Vector(14.8, 1.7, 0), Vector(14.8, 4.5, 0)),  # 6
    Part.LineSegment(Vector(14.8, 4.5, 0), Vector(11.1, 4.5, 0)),  # 7
], False)
sketch6.addConstraint([
    Sketcher.Constraint("Coincident", 0, 2, 1, 1),
    Sketcher.Constraint("Coincident", 1, 2, 2, 1),
    Sketcher.Constraint("Coincident", 2, 2, 3, 1),
    Sketcher.Constraint("Coincident", 3, 2, 0, 1),
    Sketcher.Constraint("Coincident", 4, 2, 5, 1),
    Sketcher.Constraint("Coincident", 5, 2, 6, 1),
    Sketcher.Constraint("Coincident", 6, 2, 7, 1),
    Sketcher.Constraint("Coincident", 7, 2, 4, 1),
    Sketcher.Constraint("Vertical", 0),
    Sketcher.Constraint("Horizontal", 1),
    Sketcher.Constraint("Vertical", 2),
    Sketcher.Constraint("Horizontal", 3),
    Sketcher.Constraint("Vertical", 4),
    Sketcher.Constraint("Horizontal", 5),
    Sketcher.Constraint("Vertical", 6),
    Sketcher.Constraint("Horizontal", 7),
    Sketcher.Constraint("Symmetric", 1, 2, 4, 2, -2),
    Sketcher.Constraint("Symmetric", 3, 2, 6, 2, -2),
    Sketcher.Constraint("DistanceX", 1, 1, 1, 2, Q("3.7 mm")),
    Sketcher.Constraint("DistanceY", 0, 2, 0, 1, Q("2.8 mm")),
    Sketcher.Constraint("DistanceY", -1, 1, 0, 2, Q("1.7 mm")),
    Sketcher.Constraint("DistanceX", 1, 2, 4, 2, Q("22.1 mm")),
])
sketch6.setExpression("Constraints[18]", "Params.sketch6_width")
sketch6.setExpression("Constraints[19]", "Params.sketch6_height")
pocket4 = body.newObject("PartDesign::Pocket", "Pocket003")
pocket4.Profile = sketch6
pocket4.setExpression("Length", "Params.pocket4_length")

doc.recompute()
